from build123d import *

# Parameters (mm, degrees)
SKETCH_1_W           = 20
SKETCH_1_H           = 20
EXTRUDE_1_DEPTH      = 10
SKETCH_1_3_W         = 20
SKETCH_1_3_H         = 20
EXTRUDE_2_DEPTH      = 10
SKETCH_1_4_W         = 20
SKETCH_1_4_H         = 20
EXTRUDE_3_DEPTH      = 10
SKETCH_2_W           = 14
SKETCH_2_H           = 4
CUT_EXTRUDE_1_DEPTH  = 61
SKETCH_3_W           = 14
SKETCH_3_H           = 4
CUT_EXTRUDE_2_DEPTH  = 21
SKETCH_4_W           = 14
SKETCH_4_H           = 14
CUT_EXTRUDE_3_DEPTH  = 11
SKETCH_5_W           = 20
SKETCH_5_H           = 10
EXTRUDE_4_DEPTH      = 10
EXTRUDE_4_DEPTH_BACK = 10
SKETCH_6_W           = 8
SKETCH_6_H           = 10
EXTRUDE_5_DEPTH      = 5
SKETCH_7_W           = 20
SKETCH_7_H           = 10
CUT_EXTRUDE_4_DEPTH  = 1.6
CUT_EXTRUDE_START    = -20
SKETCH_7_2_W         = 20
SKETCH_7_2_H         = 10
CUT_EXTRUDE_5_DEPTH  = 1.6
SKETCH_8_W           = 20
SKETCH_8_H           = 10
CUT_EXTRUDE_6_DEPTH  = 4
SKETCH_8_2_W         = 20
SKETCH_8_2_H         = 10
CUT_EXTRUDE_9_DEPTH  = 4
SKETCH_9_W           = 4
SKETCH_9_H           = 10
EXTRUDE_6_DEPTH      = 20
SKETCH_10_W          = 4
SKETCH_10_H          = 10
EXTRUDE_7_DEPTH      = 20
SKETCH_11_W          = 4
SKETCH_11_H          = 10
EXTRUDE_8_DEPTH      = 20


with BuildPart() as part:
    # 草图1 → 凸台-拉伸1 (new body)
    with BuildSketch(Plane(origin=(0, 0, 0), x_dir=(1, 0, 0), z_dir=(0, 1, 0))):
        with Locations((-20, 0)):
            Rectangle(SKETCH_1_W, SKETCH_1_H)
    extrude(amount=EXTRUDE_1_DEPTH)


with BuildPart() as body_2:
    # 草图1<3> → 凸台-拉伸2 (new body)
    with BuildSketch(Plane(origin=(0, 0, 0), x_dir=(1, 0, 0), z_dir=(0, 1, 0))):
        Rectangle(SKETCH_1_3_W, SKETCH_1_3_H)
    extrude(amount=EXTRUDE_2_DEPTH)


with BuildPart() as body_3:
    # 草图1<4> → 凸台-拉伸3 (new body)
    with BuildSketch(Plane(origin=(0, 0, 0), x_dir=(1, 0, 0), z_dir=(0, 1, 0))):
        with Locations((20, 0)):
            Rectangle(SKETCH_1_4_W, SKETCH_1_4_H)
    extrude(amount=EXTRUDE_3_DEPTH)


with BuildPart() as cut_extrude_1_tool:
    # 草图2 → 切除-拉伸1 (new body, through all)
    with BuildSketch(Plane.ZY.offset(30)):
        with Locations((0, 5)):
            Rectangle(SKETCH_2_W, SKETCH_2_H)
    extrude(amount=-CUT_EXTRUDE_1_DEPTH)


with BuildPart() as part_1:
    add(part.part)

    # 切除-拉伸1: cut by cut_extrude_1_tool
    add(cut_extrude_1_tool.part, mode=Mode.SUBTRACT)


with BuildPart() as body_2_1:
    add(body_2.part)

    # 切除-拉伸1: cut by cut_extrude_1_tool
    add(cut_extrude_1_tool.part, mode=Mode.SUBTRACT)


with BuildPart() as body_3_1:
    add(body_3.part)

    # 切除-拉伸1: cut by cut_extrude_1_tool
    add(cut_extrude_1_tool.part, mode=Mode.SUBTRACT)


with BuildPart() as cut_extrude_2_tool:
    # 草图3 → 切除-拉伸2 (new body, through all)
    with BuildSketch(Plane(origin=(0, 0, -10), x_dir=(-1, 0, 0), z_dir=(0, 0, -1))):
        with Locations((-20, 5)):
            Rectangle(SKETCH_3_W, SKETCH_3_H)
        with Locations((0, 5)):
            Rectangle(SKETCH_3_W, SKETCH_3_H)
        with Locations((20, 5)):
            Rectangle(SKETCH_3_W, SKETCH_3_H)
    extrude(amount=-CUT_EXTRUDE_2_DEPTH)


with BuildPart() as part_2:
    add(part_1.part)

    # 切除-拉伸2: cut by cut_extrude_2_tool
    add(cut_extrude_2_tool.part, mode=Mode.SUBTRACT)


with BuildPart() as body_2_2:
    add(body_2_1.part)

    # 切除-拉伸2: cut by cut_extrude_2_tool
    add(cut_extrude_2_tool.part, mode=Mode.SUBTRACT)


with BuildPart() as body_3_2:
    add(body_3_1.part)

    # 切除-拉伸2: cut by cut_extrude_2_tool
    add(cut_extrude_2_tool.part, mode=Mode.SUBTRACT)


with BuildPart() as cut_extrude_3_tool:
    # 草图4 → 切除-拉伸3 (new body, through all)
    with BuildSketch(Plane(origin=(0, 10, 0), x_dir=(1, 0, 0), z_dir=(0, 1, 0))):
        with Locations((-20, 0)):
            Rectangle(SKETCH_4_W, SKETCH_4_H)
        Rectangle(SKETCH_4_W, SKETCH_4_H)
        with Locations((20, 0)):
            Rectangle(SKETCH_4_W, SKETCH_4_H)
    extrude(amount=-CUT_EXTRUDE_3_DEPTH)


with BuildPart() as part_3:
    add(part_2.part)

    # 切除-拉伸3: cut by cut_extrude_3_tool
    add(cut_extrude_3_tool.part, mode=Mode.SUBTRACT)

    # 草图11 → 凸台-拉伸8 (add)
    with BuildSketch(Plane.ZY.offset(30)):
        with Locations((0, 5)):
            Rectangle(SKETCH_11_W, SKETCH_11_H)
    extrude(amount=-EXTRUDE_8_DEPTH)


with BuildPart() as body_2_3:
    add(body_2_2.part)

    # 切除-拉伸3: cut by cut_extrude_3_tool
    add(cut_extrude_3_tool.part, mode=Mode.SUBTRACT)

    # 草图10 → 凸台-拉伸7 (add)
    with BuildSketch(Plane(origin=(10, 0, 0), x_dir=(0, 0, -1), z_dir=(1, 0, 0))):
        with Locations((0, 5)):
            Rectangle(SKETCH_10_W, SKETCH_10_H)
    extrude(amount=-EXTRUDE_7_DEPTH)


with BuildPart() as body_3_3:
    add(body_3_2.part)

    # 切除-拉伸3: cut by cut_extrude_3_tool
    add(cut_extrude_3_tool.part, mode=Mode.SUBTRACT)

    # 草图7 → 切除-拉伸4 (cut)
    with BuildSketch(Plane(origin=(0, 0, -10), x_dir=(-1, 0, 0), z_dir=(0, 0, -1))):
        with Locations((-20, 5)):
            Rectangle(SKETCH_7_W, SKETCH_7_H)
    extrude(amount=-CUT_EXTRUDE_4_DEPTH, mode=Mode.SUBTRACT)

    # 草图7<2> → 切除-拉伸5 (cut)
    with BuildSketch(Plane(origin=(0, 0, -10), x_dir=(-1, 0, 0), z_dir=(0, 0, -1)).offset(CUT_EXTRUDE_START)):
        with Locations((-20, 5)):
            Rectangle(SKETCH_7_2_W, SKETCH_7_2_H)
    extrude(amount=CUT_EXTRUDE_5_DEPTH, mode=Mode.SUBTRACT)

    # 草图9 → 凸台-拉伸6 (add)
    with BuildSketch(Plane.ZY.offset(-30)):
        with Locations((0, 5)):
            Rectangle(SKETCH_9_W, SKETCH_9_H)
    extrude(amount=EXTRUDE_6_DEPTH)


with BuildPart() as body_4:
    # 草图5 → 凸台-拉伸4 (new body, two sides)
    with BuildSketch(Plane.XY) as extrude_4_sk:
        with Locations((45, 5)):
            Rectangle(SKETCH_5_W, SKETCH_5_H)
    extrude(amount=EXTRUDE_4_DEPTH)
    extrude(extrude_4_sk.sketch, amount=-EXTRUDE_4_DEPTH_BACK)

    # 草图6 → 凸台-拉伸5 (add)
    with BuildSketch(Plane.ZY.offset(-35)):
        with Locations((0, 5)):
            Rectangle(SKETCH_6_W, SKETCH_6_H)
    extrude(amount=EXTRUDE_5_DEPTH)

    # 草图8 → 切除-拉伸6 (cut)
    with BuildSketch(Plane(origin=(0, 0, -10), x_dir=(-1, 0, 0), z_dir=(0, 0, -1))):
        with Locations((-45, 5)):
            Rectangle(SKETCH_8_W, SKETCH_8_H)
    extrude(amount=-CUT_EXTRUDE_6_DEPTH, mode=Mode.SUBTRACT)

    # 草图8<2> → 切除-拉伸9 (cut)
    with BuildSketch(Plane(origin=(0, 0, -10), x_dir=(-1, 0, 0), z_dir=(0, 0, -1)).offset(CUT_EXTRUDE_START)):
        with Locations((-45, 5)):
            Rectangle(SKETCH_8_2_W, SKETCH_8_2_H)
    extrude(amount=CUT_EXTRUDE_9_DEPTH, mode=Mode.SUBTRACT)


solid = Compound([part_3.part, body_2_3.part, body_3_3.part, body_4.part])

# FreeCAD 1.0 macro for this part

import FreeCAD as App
import Part
import Sketcher
Q = App.Units.Quantity


def add_polygon(sketch, points):
    """Adds a closed chain of lines whose ends are joined by coincident constraints."""
    first, n = sketch.GeometryCount, len(points)
    for a, b in zip(points, points[1:] + points[:1]):
        sketch.addGeometry(Part.LineSegment(App.Vector(*a, 0), App.Vector(*b, 0)), False)
    for i in range(n):
        sketch.addConstraint(Sketcher.Constraint("Coincident", first + i, 2, first + (i + 1) % n, 1))

doc = App.newDocument("Part")
body = doc.addObject("PartDesign::Body", "Body")

sketch1 = body.newObject("Sketcher::SketchObject", "Sketch")
sketch1.AttachmentSupport = (doc.getObject("XZ_Plane"), [""])
sketch1.MapMode = "FlatFace"
add_polygon(sketch1, [(-30, -10), (-30, 10), (-10, 10), (-10, -10)])
sketch1.addConstraint(Sketcher.Constraint("Vertical", 0))
sketch1.addConstraint(Sketcher.Constraint("Horizontal", 1))
sketch1.addConstraint(Sketcher.Constraint("Vertical", 2))
sketch1.addConstraint(Sketcher.Constraint("Horizontal", 3))
sketch1.addConstraint(Sketcher.Constraint("Equal", 3, 0))
sketch1.addConstraint(Sketcher.Constraint("DistanceX", 1, 1, 1, 2, Q("20 mm")))
sketch1.addConstraint(Sketcher.Constraint("DistanceX", 0, 2, -1, 1, Q("30 mm")))
sketch1.addConstraint(Sketcher.Constraint("DistanceY", -1, 1, 0, 2, Q("10 mm")))
pad1 = body.newObject("PartDesign::Pad", "Pad")
pad1.Profile = sketch1
pad1.Length = 10
pad1.Reversed = True
body2 = doc.addObject("PartDesign::Body", "Body001")

sketch2 = body2.newObject("Sketcher::SketchObject", "Sketch001")
sketch2.AttachmentSupport = (doc.getObject("XZ_Plane001"), [""])
sketch2.MapMode = "FlatFace"
add_polygon(sketch2, [(-10, -10), (-10, 10), (10, 10), (10, -10)])
sketch2.addConstraint(Sketcher.Constraint("Vertical", 0))
sketch2.addConstraint(Sketcher.Constraint("Horizontal", 1))
sketch2.addConstraint(Sketcher.Constraint("Vertical", 2))
sketch2.addConstraint(Sketcher.Constraint("Horizontal", 3))
sketch2.addConstraint(Sketcher.Constraint("Symmetric", 0, 2, 2, 2, -1, 1))
sketch2.addConstraint(Sketcher.Constraint("Equal", 3, 0))
sketch2.addConstraint(Sketcher.Constraint("DistanceX", 1, 1, 1, 2, Q("20 mm")))
pad2 = body2.newObject("PartDesign::Pad", "Pad001")
pad2.Profile = sketch2
pad2.Length = 10
pad2.Reversed = True
body3 = doc.addObject("PartDesign::Body", "Body002")

sketch3 = body3.newObject("Sketcher::SketchObject", "Sketch002")
sketch3.AttachmentSupport = (doc.getObject("XZ_Plane002"), [""])
sketch3.MapMode = "FlatFace"
add_polygon(sketch3, [(10, -10), (10, 10), (30, 10), (30, -10)])
sketch3.addConstraint(Sketcher.Constraint("Vertical", 0))
sketch3.addConstraint(Sketcher.Constraint("Horizontal", 1))
sketch3.addConstraint(Sketcher.Constraint("Vertical", 2))
sketch3.addConstraint(Sketcher.Constraint("Horizontal", 3))
sketch3.addConstraint(Sketcher.Constraint("Equal", 3, 0))
sketch3.addConstraint(Sketcher.Constraint("DistanceX", 1, 1, 1, 2, Q("20 mm")))
sketch3.addConstraint(Sketcher.Constraint("DistanceX", -1, 1, 0, 2, Q("10 mm")))
sketch3.addConstraint(Sketcher.Constraint("DistanceY", -1, 1, 0, 2, Q("10 mm")))
pad3 = body3.newObject("PartDesign::Pad", "Pad002")
pad3.Profile = sketch3
pad3.Length = 10
pad3.Reversed = True
body4 = doc.addObject("PartDesign::Body", "Body003")

sketch4 = body4.newObject("Sketcher::SketchObject", "Sketch003")
sketch4.AttachmentSupport = (doc.getObject("YZ_Plane003"), [""])
sketch4.MapMode = "FlatFace"
sketch4.AttachmentOffset = App.Placement(App.Vector(0, 0, -30), App.Rotation())
add_polygon(sketch4, [(7, -7), (3, -7), (3, 7), (7, 7)])
sketch4.addConstraint(Sketcher.Constraint("Horizontal", 0))
sketch4.addConstraint(Sketcher.Constraint("Vertical", 1))
sketch4.addConstraint(Sketcher.Constraint("Horizontal", 2))
sketch4.addConstraint(Sketcher.Constraint("Vertical", 3))
sketch4.addConstraint(Sketcher.Constraint("DistanceX", 0, 2, 0, 1, Q("4 mm")))
sketch4.addConstraint(Sketcher.Constraint("DistanceY", 1, 1, 1, 2, Q("14 mm")))
sketch4.addConstraint(Sketcher.Constraint("DistanceX", -1, 1, 0, 2, Q("3 mm")))
sketch4.addConstraint(Sketcher.Constraint("DistanceY", 0, 2, -1, 1, Q("7 mm")))
pad4 = body4.newObject("PartDesign::Pad", "Pad003")
pad4.Profile = sketch4
pad4.Length = 61
doc.recompute()

body5 = doc.addObject("PartDesign::Body", "Body004")
body5.BaseFeature = body4
boolean = body.newObject("PartDesign::Boolean", "Boolean")
boolean.Type = "Cut"
boolean.addObjects([body5])
doc.recompute()

body6 = doc.addObject("PartDesign::Body", "Body005")
body6.BaseFeature = body4
boolean2 = body2.newObject("PartDesign::Boolean", "Boolean001")
boolean2.Type = "Cut"
boolean2.addObjects([body6])
doc.recompute()

boolean3 = body3.newObject("PartDesign::Boolean", "Boolean002")
boolean3.Type = "Cut"
boolean3.addObjects([body4])
body7 = doc.addObject("PartDesign::Body", "Body006")
body7.AllowCompound = True

sketch5 = body7.newObject("Sketcher::SketchObject", "Sketch004")
sketch5.AttachmentSupport = (doc.getObject("XY_Plane006"), [""])
sketch5.MapMode = "FlatFace"
sketch5.AttachmentOffset = App.Placement(App.Vector(0, 0, -10), App.Rotation())
add_polygon(sketch5, [(27, 7), (27, 3), (13, 3), (13, 7)])
add_polygon(sketch5, [(7, 7), (7, 3), (-7, 3), (-7, 7)])
add_polygon(sketch5, [(-13, 7), (-13, 3), (-27, 3), (-27, 7)])
sketch5.addConstraint(Sketcher.Constraint("Vertical", 0))
sketch5.addConstraint(Sketcher.Constraint("Horizontal", 1))
sketch5.addConstraint(Sketcher.Constraint("Vertical", 2))
sketch5.addConstraint(Sketcher.Constraint("Horizontal", 3))
sketch5.addConstraint(Sketcher.Constraint("Vertical", 4))
sketch5.addConstraint(Sketcher.Constraint("Horizontal", 5))
sketch5.addConstraint(Sketcher.Constraint("Vertical", 6))
sketch5.addConstraint(Sketcher.Constraint("Horizontal", 7))
sketch5.addConstraint(Sketcher.Constraint("Vertical", 8))
sketch5.addConstraint(Sketcher.Constraint("Horizontal", 9))
sketch5.addConstraint(Sketcher.Constraint("Vertical", 10))
sketch5.addConstraint(Sketcher.Constraint("Horizontal", 11))
sketch5.addConstraint(Sketcher.Constraint("Symmetric", 1, 2, 8, 2, -2))
sketch5.addConstraint(Sketcher.Constraint("Symmetric", 3, 2, 10, 2, -2))
sketch5.addConstraint(Sketcher.Constraint("Horizontal", 1, 2, 4, 2))
sketch5.addConstraint(Sketcher.Constraint("Horizontal", 3, 2, 6, 2))
sketch5.addConstraint(Sketcher.Constraint("Equal", 3, 5))
sketch5.addConstraint(Sketcher.Constraint("DistanceX", 1, 2, 1, 1, Q("14 mm")))
sketch5.addConstraint(Sketcher.Constraint("DistanceY", 0, 2, 0, 1, Q("4 mm")))
sketch5.addConstraint(Sketcher.Constraint("DistanceX", -1, 1, 0, 2, Q("27 mm")))
sketch5.addConstraint(Sketcher.Constraint("DistanceY", -1, 1, 0, 2, Q("3 mm")))
sketch5.addConstraint(Sketcher.Constraint("DistanceX", -1, 1, 4, 2, Q("7 mm")))
pad5 = body7.newObject("PartDesign::Pad", "Pad004")
pad5.Profile = sketch5
pad5.Length = 21
doc.recompute()

body8 = doc.addObject("PartDesign::Body", "Body007")
body8.BaseFeature = body7
boolean4 = body.newObject("PartDesign::Boolean", "Boolean003")
boolean4.Type = "Cut"
boolean4.addObjects([body8])
doc.recompute()

body9 = doc.addObject("PartDesign::Body", "Body008")
body9.BaseFeature = body7
boolean5 = body2.newObject("PartDesign::Boolean", "Boolean004")
boolean5.Type = "Cut"
boolean5.addObjects([body9])
doc.recompute()

boolean6 = body3.newObject("PartDesign::Boolean", "Boolean005")
boolean6.Type = "Cut"
boolean6.addObjects([body7])
body10 = doc.addObject("PartDesign::Body", "Body009")
body10.AllowCompound = True

sketch6 = body10.newObject("Sketcher::SketchObject", "Sketch005")
sketch6.AttachmentSupport = (doc.getObject("XZ_Plane009"), [""])
sketch6.MapMode = "FlatFace"
sketch6.AttachmentOffset = App.Placement(App.Vector(0, 0, -10), App.Rotation())
add_polygon(sketch6, [(-27, -7), (-27, 7), (-13, 7), (-13, -7)])
add_polygon(sketch6, [(-7, -7), (-7, 7), (7, 7), (7, -7)])
add_polygon(sketch6, [(13, -7), (13, 7), (27, 7), (27, -7)])
sketch6.addConstraint(Sketcher.Constraint("Vertical", 0))
sketch6.addConstraint(Sketcher.Constraint("Horizontal", 1))
sketch6.addConstraint(Sketcher.Constraint("Vertical", 2))
sketch6.addConstraint(Sketcher.Constraint("Horizontal", 3))
sketch6.addConstraint(Sketcher.Constraint("Vertical", 4))
sketch6.addConstraint(Sketcher.Constraint("Horizontal", 5))
sketch6.addConstraint(Sketcher.Constraint("Vertical", 6))
sketch6.addConstraint(Sketcher.Constraint("Horizontal", 7))
sketch6.addConstraint(Sketcher.Constraint("Vertical", 8))
sketch6.addConstraint(Sketcher.Constraint("Horizontal", 9))
sketch6.addConstraint(Sketcher.Constraint("Vertical", 10))
sketch6.addConstraint(Sketcher.Constraint("Horizontal", 11))
sketch6.addConstraint(Sketcher.Constraint("Symmetric", 4, 2, 6, 2, -1, 1))
sketch6.addConstraint(Sketcher.Constraint("Symmetric", 2, 2, 8, 2, -1, 1))
sketch6.addConstraint(Sketcher.Constraint("Symmetric", 0, 2, 10, 2, -1, 1))
sketch6.addConstraint(Sketcher.Constraint("Horizontal", 1, 2, 4, 2))
sketch6.addConstraint(Sketcher.Constraint("Horizontal", 3, 2, 6, 2))
sketch6.addConstraint(Sketcher.Constraint("Equal", 3, 5))
sketch6.addConstraint(Sketcher.Constraint("Equal", 11, 0))
sketch6.addConstraint(Sketcher.Constraint("DistanceX", 1, 1, 1, 2, Q("14 mm")))
sketch6.addConstraint(Sketcher.Constraint("DistanceX", 0, 2, -1, 1, Q("27 mm")))
pad6 = body10.newObject("PartDesign::Pad", "Pad005")
pad6.Profile = sketch6
pad6.Length = 11
doc.recompute()

body11 = doc.addObject("PartDesign::Body", "Body010")
body11.BaseFeature = body10
boolean7 = body.newObject("PartDesign::Boolean", "Boolean006")
boolean7.Type = "Cut"
boolean7.addObjects([body11])
doc.recompute()

sketch7 = body.newObject("Sketcher::SketchObject", "Sketch006")
sketch7.AttachmentSupport = (doc.getObject("YZ_Plane"), [""])
sketch7.MapMode = "FlatFace"
sketch7.AttachmentOffset = App.Placement(App.Vector(0, 0, -30), App.Rotation())
add_polygon(sketch7, [(10, -2), (0, -2), (0, 2), (10, 2)])
sketch7.addConstraint(Sketcher.Constraint("Horizontal", 0))
sketch7.addConstraint(Sketcher.Constraint("Vertical", 1))
sketch7.addConstraint(Sketcher.Constraint("Horizontal", 2))
sketch7.addConstraint(Sketcher.Constraint("Vertical", 3))
sketch7.addConstraint(Sketcher.Constraint("Symmetric", 0, 2, 1, 2, -1, 1))
sketch7.addConstraint(Sketcher.Constraint("DistanceX", 0, 2, 0, 1, Q("10 mm")))
sketch7.addConstraint(Sketcher.Constraint("DistanceY", 1, 1, 1, 2, Q("4 mm")))
pad7 = body.newObject("PartDesign::Pad", "Pad006")
pad7.Profile = sketch7
pad7.Length = 20
doc.recompute()

body12 = doc.addObject("PartDesign::Body", "Body011")
body12.BaseFeature = body10
boolean8 = body2.newObject("PartDesign::Boolean", "Boolean007")
boolean8.Type = "Cut"
boolean8.addObjects([body12])
doc.recompute()

sketch8 = body2.newObject("Sketcher::SketchObject", "Sketch007")
sketch8.AttachmentSupport = (doc.getObject("YZ_Plane001"), [""])
sketch8.MapMode = "FlatFace"
sketch8.AttachmentOffset = App.Placement(App.Vector(0, 0, 10), App.Rotation())
add_polygon(sketch8, [(10, 2), (0, 2), (0, -2), (10, -2)])
sketch8.addConstraint(Sketcher.Constraint("Horizontal", 0))
sketch8.addConstraint(Sketcher.Constraint("Vertical", 1))
sketch8.addConstraint(Sketcher.Constraint("Horizontal", 2))
sketch8.addConstraint(Sketcher.Constraint("Vertical", 3))
sketch8.addConstraint(Sketcher.Constraint("Symmetric", 0, 2, 1, 2, -1, 1))
sketch8.addConstraint(Sketcher.Constraint("DistanceX", 0, 2, 0, 1, Q("10 mm")))
sketch8.addConstraint(Sketcher.Constraint("DistanceY", 1, 2, 1, 1, Q("4 mm")))
pad8 = body2.newObject("PartDesign::Pad", "Pad007")
pad8.Profile = sketch8
pad8.Length = 20
pad8.Reversed = True
doc.recompute()

boolean9 = body3.newObject("PartDesign::Boolean", "Boolean008")
boolean9.Type = "Cut"
boolean9.addObjects([body10])

sketch9 = body3.newObject("Sketcher::SketchObject", "Sketch008")
sketch9.AttachmentSupport = (doc.getObject("XY_Plane002"), [""])
sketch9.MapMode = "FlatFace"
sketch9.AttachmentOffset = App.Placement(App.Vector(0, 0, -10), App.Rotation())
add_polygon(sketch9, [(30, 10), (30, 0), (10, 0), (10, 10)])
sketch9.addConstraint(Sketcher.Constraint("Vertical", 0))
sketch9.addConstraint(Sketcher.Constraint("Horizontal", 1))
sketch9.addConstraint(Sketcher.Constraint("Vertical", 2))
sketch9.addConstraint(Sketcher.Constraint("Horizontal", 3))
sketch9.addConstraint(Sketcher.Constraint("PointOnObject", 0, 2, -1))
sketch9.addConstraint(Sketcher.Constraint("DistanceX", 1, 2, 1, 1, Q("20 mm")))
sketch9.addConstraint(Sketcher.Constraint("DistanceY", 0, 2, 0, 1, Q("10 mm")))
sketch9.addConstraint(Sketcher.Constraint("DistanceX", -1, 1, 0, 2, Q("30 mm")))
pocket1 = body3.newObject("PartDesign::Pocket", "Pocket")
pocket1.Profile = sketch9
pocket1.Length = 1.6
pocket1.Reversed = True

sketch10 = body3.newObject("Sketcher::SketchObject", "Sketch009")
sketch10.AttachmentSupport = (doc.getObject("XY_Plane002"), [""])
sketch10.MapMode = "FlatFace"
sketch10.AttachmentOffset = App.Placement(App.Vector(0, 0, 10), App.Rotation())
add_polygon(sketch10, [(30, 10), (30, 0), (10, 0), (10, 10)])
sketch10.addConstraint(Sketcher.Constraint("Vertical", 0))
sketch10.addConstraint(Sketcher.Constraint("Horizontal", 1))
sketch10.addConstraint(Sketcher.Constraint("Vertical", 2))
sketch10.addConstraint(Sketcher.Constraint("Horizontal", 3))
sketch10.addConstraint(Sketcher.Constraint("PointOnObject", 0, 2, -1))
sketch10.addConstraint(Sketcher.Constraint("DistanceX", 1, 2, 1, 1, Q("20 mm")))
sketch10.addConstraint(Sketcher.Constraint("DistanceY", 0, 2, 0, 1, Q("10 mm")))
sketch10.addConstraint(Sketcher.Constraint("DistanceX", -1, 1, 0, 2, Q("30 mm")))
pocket2 = body3.newObject("PartDesign::Pocket", "Pocket001")
pocket2.Profile = sketch10
pocket2.Length = 1.6

sketch11 = body3.newObject("Sketcher::SketchObject", "Sketch010")
sketch11.AttachmentSupport = (doc.getObject("YZ_Plane002"), [""])
sketch11.MapMode = "FlatFace"
sketch11.AttachmentOffset = App.Placement(App.Vector(0, 0, 30), App.Rotation())
add_polygon(sketch11, [(10, -2), (0, -2), (0, 2), (10, 2)])
sketch11.addConstraint(Sketcher.Constraint("Horizontal", 0))
sketch11.addConstraint(Sketcher.Constraint("Vertical", 1))
sketch11.addConstraint(Sketcher.Constraint("Horizontal", 2))
sketch11.addConstraint(Sketcher.Constraint("Vertical", 3))
sketch11.addConstraint(Sketcher.Constraint("Symmetric", 0, 2, 1, 2, -1, 1))
sketch11.addConstraint(Sketcher.Constraint("DistanceX", 0, 2, 0, 1, Q("10 mm")))
sketch11.addConstraint(Sketcher.Constraint("DistanceY", 1, 1, 1, 2, Q("4 mm")))
pad9 = body3.newObject("PartDesign::Pad", "Pad008")
pad9.Profile = sketch11
pad9.Length = 20
pad9.Reversed = True
body13 = doc.addObject("PartDesign::Body", "Body012")

sketch12 = body13.newObject("Sketcher::SketchObject", "Sketch011")
sketch12.AttachmentSupport = (doc.getObject("XY_Plane012"), [""])
sketch12.MapMode = "FlatFace"
add_polygon(sketch12, [(35, 10), (35, 0), (55, 0), (55, 10)])
sketch12.addConstraint(Sketcher.Constraint("Vertical", 0))
sketch12.addConstraint(Sketcher.Constraint("Horizontal", 1))
sketch12.addConstraint(Sketcher.Constraint("Vertical", 2))
sketch12.addConstraint(Sketcher.Constraint("Horizontal", 3))
sketch12.addConstraint(Sketcher.Constraint("PointOnObject", 0, 2, -1))
sketch12.addConstraint(Sketcher.Constraint("DistanceX", 1, 1, 1, 2, Q("20 mm")))
sketch12.addConstraint(Sketcher.Constraint("DistanceY", 0, 2, 0, 1, Q("10 mm")))
sketch12.addConstraint(Sketcher.Constraint("DistanceX", -1, 1, 0, 2, Q("35 mm")))
pad10 = body13.newObject("PartDesign::Pad", "Pad009")
pad10.Profile = sketch12
pad10.Type = "TwoLengths"
pad10.Length = 10
pad10.Length2 = 10

sketch13 = body13.newObject("Sketcher::SketchObject", "Sketch012")
sketch13.AttachmentSupport = (doc.getObject("YZ_Plane012"), [""])
sketch13.MapMode = "FlatFace"
sketch13.AttachmentOffset = App.Placement(App.Vector(0, 0, 35), App.Rotation())
add_polygon(sketch13, [(10, -4), (0, -4), (0, 4), (10, 4)])
sketch13.addConstraint(Sketcher.Constraint("Horizontal", 0))
sketch13.addConstraint(Sketcher.Constraint("Vertical", 1))
sketch13.addConstraint(Sketcher.Constraint("Horizontal", 2))
sketch13.addConstraint(Sketcher.Constraint("Vertical", 3))
sketch13.addConstraint(Sketcher.Constraint("Symmetric", 0, 2, 1, 2, -1, 1))
sketch13.addConstraint(Sketcher.Constraint("DistanceX", 0, 2, 0, 1, Q("10 mm")))
sketch13.addConstraint(Sketcher.Constraint("DistanceY", 1, 1, 1, 2, Q("8 mm")))
pad11 = body13.newObject("PartDesign::Pad", "Pad010")
pad11.Profile = sketch13
pad11.Length = 5
pad11.Reversed = True

sketch14 = body13.newObject("Sketcher::SketchObject", "Sketch013")
sketch14.AttachmentSupport = (doc.getObject("XY_Plane012"), [""])
sketch14.MapMode = "FlatFace"
sketch14.AttachmentOffset = App.Placement(App.Vector(0, 0, -10), App.Rotation())
add_polygon(sketch14, [(55, 10), (55, 0), (35, 0), (35, 10)])
sketch14.addConstraint(Sketcher.Constraint("Vertical", 0))
sketch14.addConstraint(Sketcher.Constraint("Horizontal", 1))
sketch14.addConstraint(Sketcher.Constraint("Vertical", 2))
sketch14.addConstraint(Sketcher.Constraint("Horizontal", 3))
sketch14.addConstraint(Sketcher.Constraint("PointOnObject", 0, 2, -1))
sketch14.addConstraint(Sketcher.Constraint("DistanceX", 1, 2, 1, 1, Q("20 mm")))
sketch14.addConstraint(Sketcher.Constraint("DistanceY", 0, 2, 0, 1, Q("10 mm")))
sketch14.addConstraint(Sketcher.Constraint("DistanceX", -1, 1, 0, 2, Q("55 mm")))
pocket3 = body13.newObject("PartDesign::Pocket", "Pocket002")
pocket3.Profile = sketch14
pocket3.Length = 4
pocket3.Reversed = True

sketch15 = body13.newObject("Sketcher::SketchObject", "Sketch014")
sketch15.AttachmentSupport = (doc.getObject("XY_Plane012"), [""])
sketch15.MapMode = "FlatFace"
sketch15.AttachmentOffset = App.Placement(App.Vector(0, 0, 10), App.Rotation())
add_polygon(sketch15, [(55, 10), (55, 0), (35, 0), (35, 10)])
sketch15.addConstraint(Sketcher.Constraint("Vertical", 0))
sketch15.addConstraint(Sketcher.Constraint("Horizontal", 1))
sketch15.addConstraint(Sketcher.Constraint("Vertical", 2))
sketch15.addConstraint(Sketcher.Constraint("Horizontal", 3))
sketch15.addConstraint(Sketcher.Constraint("PointOnObject", 0, 2, -1))
sketch15.addConstraint(Sketcher.Constraint("DistanceX", 1, 2, 1, 1, Q("20 mm")))
sketch15.addConstraint(Sketcher.Constraint("DistanceY", 0, 2, 0, 1, Q("10 mm")))
sketch15.addConstraint(Sketcher.Constraint("DistanceX", -1, 1, 0, 2, Q("55 mm")))
pocket4 = body13.newObject("PartDesign::Pocket", "Pocket003")
pocket4.Profile = sketch15
pocket4.Length = 4

doc.recompute()
